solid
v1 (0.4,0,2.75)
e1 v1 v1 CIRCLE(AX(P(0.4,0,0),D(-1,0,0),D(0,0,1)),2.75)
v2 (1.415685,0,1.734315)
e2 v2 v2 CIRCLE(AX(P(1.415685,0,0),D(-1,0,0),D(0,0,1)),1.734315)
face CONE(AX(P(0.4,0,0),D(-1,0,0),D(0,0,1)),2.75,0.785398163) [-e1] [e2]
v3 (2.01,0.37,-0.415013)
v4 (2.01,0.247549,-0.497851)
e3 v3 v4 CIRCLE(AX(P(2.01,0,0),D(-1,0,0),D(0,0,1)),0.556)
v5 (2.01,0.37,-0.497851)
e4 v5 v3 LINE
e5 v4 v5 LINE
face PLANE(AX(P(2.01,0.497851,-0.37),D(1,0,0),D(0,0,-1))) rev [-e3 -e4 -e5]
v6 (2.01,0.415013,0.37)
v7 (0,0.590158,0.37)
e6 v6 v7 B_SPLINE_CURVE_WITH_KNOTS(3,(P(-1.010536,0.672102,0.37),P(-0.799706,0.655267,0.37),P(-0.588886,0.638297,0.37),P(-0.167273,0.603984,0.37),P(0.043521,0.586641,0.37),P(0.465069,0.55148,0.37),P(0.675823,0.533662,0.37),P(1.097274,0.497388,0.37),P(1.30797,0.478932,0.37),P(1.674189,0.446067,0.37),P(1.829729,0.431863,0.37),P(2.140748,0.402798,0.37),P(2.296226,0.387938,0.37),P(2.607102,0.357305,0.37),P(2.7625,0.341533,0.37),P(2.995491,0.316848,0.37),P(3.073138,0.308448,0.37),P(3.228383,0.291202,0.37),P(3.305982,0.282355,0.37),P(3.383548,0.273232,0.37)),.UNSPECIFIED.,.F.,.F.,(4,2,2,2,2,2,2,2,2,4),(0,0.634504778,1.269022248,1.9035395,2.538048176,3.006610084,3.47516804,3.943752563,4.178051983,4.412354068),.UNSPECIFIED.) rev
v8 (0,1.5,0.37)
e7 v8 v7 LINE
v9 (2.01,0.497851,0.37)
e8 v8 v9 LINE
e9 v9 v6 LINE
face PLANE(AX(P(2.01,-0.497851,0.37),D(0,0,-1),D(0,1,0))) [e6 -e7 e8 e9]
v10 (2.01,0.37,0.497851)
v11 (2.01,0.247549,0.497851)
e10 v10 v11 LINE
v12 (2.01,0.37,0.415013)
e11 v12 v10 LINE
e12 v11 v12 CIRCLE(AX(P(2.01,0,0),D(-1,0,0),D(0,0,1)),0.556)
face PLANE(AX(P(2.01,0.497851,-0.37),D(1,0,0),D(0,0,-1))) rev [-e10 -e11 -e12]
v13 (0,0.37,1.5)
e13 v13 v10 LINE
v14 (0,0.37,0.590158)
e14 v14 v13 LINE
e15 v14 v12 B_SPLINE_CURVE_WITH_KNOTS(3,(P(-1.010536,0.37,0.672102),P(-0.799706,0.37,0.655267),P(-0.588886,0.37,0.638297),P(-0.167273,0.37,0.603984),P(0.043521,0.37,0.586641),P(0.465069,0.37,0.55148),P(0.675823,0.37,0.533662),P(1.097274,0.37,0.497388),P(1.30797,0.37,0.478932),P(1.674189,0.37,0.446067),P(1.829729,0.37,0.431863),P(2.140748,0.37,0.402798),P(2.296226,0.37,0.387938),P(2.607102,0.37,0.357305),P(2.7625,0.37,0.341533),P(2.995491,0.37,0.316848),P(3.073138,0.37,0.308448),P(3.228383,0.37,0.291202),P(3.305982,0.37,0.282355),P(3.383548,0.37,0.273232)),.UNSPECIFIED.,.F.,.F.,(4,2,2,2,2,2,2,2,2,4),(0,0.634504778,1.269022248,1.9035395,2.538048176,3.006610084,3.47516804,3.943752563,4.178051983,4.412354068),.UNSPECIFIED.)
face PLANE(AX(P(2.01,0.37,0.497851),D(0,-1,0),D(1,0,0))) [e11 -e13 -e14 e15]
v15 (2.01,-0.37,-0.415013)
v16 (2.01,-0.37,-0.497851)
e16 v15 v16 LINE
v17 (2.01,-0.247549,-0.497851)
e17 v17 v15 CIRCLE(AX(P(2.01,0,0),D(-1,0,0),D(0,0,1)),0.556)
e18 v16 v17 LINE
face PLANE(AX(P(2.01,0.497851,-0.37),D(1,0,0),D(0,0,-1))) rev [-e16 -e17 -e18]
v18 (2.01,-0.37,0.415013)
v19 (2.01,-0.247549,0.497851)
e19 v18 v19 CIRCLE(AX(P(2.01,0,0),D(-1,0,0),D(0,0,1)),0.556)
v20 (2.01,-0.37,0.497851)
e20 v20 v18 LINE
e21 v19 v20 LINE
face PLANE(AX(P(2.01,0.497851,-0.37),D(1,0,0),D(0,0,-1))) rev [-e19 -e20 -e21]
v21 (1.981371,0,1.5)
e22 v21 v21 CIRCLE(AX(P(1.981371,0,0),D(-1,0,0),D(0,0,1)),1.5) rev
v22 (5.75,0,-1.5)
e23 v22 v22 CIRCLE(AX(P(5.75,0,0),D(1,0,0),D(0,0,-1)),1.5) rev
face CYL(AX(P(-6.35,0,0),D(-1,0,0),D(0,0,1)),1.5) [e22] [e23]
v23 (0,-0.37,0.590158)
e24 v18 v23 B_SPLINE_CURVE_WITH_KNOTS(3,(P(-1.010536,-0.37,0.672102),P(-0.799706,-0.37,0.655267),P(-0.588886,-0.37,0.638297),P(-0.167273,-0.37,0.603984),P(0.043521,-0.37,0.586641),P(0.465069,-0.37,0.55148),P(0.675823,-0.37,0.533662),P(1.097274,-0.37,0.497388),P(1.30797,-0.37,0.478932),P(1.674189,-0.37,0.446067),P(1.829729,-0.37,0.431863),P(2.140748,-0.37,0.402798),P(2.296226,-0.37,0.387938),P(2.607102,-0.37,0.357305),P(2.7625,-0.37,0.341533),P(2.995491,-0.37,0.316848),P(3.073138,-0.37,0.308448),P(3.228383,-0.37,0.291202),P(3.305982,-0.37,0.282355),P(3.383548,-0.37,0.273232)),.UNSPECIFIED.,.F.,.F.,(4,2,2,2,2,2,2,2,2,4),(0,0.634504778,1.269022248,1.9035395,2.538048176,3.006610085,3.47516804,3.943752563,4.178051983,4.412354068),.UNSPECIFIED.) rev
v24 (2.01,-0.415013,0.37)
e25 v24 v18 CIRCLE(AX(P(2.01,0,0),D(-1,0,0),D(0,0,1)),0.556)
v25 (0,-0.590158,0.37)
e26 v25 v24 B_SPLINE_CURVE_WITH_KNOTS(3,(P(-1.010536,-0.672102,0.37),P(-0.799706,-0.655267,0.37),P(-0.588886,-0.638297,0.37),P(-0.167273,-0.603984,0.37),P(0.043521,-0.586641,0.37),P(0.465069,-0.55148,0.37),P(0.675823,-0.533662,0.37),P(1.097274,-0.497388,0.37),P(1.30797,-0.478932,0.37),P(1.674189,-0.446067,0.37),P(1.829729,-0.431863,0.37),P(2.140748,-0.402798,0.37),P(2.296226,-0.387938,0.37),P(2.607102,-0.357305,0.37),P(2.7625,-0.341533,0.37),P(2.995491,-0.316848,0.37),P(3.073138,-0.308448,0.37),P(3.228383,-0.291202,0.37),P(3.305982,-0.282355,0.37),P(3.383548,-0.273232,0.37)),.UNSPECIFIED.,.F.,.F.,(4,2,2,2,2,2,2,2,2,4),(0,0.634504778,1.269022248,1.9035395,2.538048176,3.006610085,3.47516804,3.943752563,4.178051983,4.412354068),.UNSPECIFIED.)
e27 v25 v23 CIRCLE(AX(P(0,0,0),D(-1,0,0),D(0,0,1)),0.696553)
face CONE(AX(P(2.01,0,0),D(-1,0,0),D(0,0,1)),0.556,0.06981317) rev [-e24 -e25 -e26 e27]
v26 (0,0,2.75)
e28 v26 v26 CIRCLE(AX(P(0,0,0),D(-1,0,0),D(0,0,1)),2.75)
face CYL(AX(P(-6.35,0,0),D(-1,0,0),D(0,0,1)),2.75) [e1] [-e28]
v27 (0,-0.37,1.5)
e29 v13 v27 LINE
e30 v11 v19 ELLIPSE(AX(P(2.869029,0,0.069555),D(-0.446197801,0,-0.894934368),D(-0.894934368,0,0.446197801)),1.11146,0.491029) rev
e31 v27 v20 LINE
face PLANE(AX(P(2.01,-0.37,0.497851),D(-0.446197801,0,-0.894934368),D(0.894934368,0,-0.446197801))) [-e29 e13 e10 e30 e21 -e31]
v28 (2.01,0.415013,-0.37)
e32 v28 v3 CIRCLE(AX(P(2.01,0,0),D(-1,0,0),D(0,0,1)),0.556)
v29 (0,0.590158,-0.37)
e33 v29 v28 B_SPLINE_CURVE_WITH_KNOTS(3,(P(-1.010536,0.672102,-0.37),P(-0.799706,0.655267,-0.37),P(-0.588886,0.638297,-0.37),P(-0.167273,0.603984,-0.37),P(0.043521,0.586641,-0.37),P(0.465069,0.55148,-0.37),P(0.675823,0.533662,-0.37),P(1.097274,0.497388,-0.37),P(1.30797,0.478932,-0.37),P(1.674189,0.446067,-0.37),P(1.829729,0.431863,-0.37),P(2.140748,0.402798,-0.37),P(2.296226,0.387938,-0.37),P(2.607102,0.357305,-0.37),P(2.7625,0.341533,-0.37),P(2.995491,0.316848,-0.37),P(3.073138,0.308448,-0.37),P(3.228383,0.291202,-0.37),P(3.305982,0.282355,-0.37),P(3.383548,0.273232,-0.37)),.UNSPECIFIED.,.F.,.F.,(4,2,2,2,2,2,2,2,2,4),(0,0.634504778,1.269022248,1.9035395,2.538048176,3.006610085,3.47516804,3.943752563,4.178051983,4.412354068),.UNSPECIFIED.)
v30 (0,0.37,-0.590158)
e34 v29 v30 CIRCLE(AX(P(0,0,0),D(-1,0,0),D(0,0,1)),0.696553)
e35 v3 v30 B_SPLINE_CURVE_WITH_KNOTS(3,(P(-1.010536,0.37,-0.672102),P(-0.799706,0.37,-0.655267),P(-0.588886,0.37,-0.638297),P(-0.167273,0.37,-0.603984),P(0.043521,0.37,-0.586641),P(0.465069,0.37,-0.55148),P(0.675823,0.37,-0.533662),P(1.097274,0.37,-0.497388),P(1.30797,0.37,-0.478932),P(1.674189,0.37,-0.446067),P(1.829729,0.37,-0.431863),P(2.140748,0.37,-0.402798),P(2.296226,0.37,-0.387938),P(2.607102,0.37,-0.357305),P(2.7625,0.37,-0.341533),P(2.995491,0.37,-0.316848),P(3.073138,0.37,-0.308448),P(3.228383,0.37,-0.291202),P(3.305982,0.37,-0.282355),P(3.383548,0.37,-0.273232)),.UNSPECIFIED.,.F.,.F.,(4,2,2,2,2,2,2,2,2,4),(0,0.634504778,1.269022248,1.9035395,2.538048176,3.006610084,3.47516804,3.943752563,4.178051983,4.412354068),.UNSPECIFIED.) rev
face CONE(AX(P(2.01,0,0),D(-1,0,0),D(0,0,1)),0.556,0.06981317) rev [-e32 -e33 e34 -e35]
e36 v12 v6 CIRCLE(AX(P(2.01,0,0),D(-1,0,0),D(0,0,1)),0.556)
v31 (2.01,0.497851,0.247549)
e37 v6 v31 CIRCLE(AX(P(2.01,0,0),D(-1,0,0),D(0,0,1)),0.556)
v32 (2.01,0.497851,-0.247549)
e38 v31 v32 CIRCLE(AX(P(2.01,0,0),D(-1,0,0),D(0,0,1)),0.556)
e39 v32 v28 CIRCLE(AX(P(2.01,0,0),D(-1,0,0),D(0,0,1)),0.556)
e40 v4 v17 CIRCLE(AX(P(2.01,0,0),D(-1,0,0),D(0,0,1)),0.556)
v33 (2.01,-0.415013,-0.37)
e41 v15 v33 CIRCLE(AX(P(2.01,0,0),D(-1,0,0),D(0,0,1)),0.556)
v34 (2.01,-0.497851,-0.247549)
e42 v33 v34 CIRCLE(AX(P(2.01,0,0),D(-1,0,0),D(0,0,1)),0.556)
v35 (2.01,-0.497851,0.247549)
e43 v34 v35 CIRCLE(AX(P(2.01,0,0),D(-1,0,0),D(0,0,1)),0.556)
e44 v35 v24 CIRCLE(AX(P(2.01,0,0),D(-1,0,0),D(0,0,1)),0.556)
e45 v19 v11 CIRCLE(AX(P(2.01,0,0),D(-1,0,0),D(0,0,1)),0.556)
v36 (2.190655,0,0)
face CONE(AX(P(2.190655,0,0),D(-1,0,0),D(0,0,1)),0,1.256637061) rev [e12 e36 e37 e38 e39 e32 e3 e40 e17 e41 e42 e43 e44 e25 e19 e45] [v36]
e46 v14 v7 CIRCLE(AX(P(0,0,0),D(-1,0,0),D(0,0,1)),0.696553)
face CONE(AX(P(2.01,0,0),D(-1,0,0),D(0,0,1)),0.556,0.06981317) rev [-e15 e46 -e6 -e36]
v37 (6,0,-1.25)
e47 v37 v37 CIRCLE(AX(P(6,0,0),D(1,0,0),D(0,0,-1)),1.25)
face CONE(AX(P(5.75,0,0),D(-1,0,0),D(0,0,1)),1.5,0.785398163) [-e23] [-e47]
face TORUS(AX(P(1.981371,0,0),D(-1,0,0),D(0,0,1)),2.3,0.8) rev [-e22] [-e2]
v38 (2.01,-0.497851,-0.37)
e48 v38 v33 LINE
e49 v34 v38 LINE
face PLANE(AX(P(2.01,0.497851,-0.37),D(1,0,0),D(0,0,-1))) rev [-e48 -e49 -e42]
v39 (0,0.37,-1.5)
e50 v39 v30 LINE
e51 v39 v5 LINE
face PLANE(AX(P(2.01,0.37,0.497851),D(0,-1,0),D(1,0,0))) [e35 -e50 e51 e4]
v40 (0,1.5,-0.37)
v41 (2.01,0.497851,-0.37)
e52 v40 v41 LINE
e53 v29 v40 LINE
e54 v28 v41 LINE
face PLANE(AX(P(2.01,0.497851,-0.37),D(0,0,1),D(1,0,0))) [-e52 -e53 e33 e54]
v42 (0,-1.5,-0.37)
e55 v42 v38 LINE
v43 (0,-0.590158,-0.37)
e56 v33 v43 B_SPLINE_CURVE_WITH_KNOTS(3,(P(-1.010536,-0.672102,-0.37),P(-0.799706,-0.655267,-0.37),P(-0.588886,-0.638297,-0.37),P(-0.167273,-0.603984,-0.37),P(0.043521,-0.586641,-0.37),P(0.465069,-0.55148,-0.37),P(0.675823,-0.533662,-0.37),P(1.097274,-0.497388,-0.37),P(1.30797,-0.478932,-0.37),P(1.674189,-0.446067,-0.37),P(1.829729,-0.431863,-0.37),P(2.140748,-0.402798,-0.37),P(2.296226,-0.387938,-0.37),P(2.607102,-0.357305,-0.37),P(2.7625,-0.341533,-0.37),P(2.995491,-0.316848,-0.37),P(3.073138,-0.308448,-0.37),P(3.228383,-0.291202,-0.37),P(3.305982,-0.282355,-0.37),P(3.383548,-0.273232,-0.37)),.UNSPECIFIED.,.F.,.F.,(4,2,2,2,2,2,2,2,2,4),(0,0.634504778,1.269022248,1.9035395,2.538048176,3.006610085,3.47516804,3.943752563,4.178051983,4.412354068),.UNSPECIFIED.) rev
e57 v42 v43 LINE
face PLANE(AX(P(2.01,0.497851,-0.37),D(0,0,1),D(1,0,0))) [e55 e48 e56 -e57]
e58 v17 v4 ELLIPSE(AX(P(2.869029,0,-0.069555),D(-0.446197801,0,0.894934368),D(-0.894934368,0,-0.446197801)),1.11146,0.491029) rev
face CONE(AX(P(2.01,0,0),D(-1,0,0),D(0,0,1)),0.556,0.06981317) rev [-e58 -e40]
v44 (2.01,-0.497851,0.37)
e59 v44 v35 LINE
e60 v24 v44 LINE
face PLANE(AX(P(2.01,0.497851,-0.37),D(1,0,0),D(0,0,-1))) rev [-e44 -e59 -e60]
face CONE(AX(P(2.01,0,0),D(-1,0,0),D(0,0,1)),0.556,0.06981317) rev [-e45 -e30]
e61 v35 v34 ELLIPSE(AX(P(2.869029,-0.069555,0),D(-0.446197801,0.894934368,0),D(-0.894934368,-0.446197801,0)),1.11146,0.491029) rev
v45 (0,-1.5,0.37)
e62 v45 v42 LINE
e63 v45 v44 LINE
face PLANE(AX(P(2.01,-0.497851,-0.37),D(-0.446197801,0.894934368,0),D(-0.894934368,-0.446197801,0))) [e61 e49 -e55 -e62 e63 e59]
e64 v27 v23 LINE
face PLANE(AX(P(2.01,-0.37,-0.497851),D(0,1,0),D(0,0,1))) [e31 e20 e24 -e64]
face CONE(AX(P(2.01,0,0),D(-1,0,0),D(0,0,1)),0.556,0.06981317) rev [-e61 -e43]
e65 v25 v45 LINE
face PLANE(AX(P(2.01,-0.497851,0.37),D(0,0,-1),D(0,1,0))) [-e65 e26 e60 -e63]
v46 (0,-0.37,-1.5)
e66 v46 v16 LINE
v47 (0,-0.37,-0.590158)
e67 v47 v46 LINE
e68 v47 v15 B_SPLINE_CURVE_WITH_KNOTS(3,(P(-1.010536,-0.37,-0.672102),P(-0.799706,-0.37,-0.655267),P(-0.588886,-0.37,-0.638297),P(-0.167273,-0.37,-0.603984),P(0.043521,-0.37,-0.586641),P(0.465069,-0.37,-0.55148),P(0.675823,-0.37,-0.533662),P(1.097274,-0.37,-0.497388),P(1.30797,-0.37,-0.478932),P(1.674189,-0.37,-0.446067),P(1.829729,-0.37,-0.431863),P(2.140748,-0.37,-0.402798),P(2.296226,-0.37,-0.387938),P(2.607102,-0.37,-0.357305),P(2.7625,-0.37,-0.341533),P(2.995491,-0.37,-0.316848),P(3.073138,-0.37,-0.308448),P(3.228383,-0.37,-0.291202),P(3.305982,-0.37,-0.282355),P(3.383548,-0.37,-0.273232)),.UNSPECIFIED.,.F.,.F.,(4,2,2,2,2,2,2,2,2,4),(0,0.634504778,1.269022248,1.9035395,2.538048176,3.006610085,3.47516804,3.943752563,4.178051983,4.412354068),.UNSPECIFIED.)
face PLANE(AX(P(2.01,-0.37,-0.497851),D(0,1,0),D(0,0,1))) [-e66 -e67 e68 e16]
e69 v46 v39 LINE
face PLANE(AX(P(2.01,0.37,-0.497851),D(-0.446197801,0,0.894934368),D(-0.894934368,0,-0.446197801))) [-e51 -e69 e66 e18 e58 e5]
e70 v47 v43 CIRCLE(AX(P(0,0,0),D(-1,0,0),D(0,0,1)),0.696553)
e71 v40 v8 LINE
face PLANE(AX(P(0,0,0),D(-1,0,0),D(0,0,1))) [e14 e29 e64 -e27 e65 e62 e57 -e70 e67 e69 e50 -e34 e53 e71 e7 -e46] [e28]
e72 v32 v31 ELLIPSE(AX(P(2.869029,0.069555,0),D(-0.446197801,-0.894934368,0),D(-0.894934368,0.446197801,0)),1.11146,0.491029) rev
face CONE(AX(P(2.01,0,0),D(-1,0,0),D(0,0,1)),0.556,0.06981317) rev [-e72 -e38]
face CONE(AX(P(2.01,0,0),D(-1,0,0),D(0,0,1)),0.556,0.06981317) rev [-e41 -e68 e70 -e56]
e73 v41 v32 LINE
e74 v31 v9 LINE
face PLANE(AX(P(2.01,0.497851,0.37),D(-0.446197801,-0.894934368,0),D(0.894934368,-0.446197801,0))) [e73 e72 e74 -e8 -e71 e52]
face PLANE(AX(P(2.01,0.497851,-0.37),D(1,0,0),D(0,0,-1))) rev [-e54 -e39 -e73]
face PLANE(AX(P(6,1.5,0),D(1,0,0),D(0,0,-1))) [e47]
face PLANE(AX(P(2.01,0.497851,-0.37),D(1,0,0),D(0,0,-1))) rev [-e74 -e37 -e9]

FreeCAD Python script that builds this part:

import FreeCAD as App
import Part
import Sketcher

V = App.Vector
Q = App.Units.Quantity


def edges_at(feature, points):
    """Names of the edges that pass closest to the given points."""
    edges = feature.Shape.Edges
    near = lambda p: min(range(len(edges)), key=lambda i: edges[i].distToShape(Part.Vertex(*p))[0])
    return sorted({f"Edge{near(p) + 1}" for p in points})


def add_polygon(sketch, points):
    """Adds a closed chain of lines whose ends are joined by coincident constraints."""
    first, n = sketch.GeometryCount, len(points)
    for a, b in zip(points, points[1:] + points[:1]):
        sketch.addGeometry(Part.LineSegment(App.Vector(*a, 0), App.Vector(*b, 0)), False)
    for i in range(n):
        sketch.addConstraint(Sketcher.Constraint("Coincident", first + i, 2, first + (i + 1) % n, 1))

doc = App.newDocument("Part")
body = doc.addObject("PartDesign::Body", "Body")

sketch1 = body.newObject("Sketcher::SketchObject", "Sketch")
sketch1.AttachmentSupport = (doc.getObject("XY_Plane"), [""])
sketch1.MapMode = "FlatFace"
add_polygon(sketch1, [(0, 2.75), (0, 0), (6, 0), (6, 1.5), (1.65, 1.5), (0.4, 2.75)])
sketch1.addConstraint([
    Sketcher.Constraint("Vertical", 0),
    Sketcher.Constraint("Horizontal", 1),
    Sketcher.Constraint("Vertical", 2),
    Sketcher.Constraint("Horizontal", 3),
    Sketcher.Constraint("Horizontal", 5),
    Sketcher.Constraint("Coincident", 0, 2, -1, 1),
    Sketcher.Constraint("DistanceX", 1, 1, 1, 2, Q("6 mm")),
    Sketcher.Constraint("Angle", 4, Q("135 deg")),
    Sketcher.Constraint("DistanceX", 5, 2, 5, 1, Q("0.4 mm")),
    Sketcher.Constraint("DistanceY", 2, 1, 2, 2, Q("1.5 mm")),
    Sketcher.Constraint("DistanceX", 3, 2, 3, 1, Q("4.35 mm")),
])
revolution = body.newObject("PartDesign::Revolution", "Revolution")
revolution.Profile = sketch1
revolution.ReferenceAxis = (sketch1, ["H_Axis"])
revolution.Angle = 360
doc.recompute()

fillet = body.newObject("PartDesign::Fillet", "Fillet")
fillet.Base = (revolution, edges_at(revolution, [(1.65, -1.5, 0)]))
fillet.Radius = 0.8

sketch2 = body.newObject("Sketcher::SketchObject", "Sketch001")
sketch2.AttachmentSupport = (doc.getObject("YZ_Plane"), [""])
sketch2.MapMode = "FlatFace"
add_polygon(sketch2, [(1.5, -0.4), (-1.5, -0.4), (-1.5, 0.4), (1.5, 0.4)])
sketch2.addConstraint([
    Sketcher.Constraint("Horizontal", 0),
    Sketcher.Constraint("Vertical", 1),
    Sketcher.Constraint("Horizontal", 2),
    Sketcher.Constraint("Vertical", 3),
    Sketcher.Constraint("Symmetric", 0, 2, 2, 2, -1, 1),
    Sketcher.Constraint("DistanceX", 0, 2, 0, 1, Q("3 mm")),
    Sketcher.Constraint("DistanceY", 1, 1, 1, 2, Q("0.74 mm")),
])

sketch3 = body.newObject("Sketcher::SketchObject", "Sketch002")
sketch3.AttachmentSupport = (doc.getObject("YZ_Plane"), [""])
sketch3.MapMode = "FlatFace"
sketch3.AttachmentOffset = App.Placement(V(0, 0, 2.01), App.Rotation())
add_polygon(sketch3, [(0.5, -0.4), (-0.5, -0.4), (-0.5, 0.4), (0.5, 0.4)])
sketch3.addConstraint([
    Sketcher.Constraint("Horizontal", 0),
    Sketcher.Constraint("Vertical", 1),
    Sketcher.Constraint("Horizontal", 2),
    Sketcher.Constraint("Vertical", 3),
    Sketcher.Constraint("Symmetric", 0, 2, 2, 2, -1, 1),
    Sketcher.Constraint("DistanceY", 1, 1, 1, 2, Q("0.74 mm")),
    Sketcher.Constraint("DistanceX", 0, 2, 0, 1, Q("0.995702 mm")),
])

subtractiveloft = body.newObject("PartDesign::SubtractiveLoft", "SubtractiveLoft")
subtractiveloft.Profile = sketch2
subtractiveloft.Sections = [sketch3]
doc.recompute()

polarpattern = body.newObject("PartDesign::PolarPattern", "PolarPattern")
polarpattern.Originals = [subtractiveloft]
polarpattern.Axis = (doc.getObject("X_Axis"), [""])
polarpattern.Angle = 90
polarpattern.Occurrences = 2
body.Tip = polarpattern

sketch4 = body.newObject("Sketcher::SketchObject", "Sketch003")
sketch4.AttachmentSupport = (doc.getObject("XY_Plane"), [""])
sketch4.MapMode = "FlatFace"
add_polygon(sketch4, [(0, 0.7), (0, 0), (2.2, 0), (2, 0.6)])
sketch4.addConstraint([
    Sketcher.Constraint("Vertical", 0),
    Sketcher.Constraint("Horizontal", 1),
    Sketcher.Constraint("Coincident", 0, 2, -1, 1),
    Sketcher.Constraint("Angle", 2, Q("108 deg")),
    Sketcher.Constraint("Angle", 3, Q("176 deg")),
    Sketcher.Constraint("DistanceX", -1, 1, 2, 2, Q("2.01 mm")),
    Sketcher.Constraint("DistanceY", -1, 1, 2, 2, Q("0.556 mm")),
])
groove = body.newObject("PartDesign::Groove", "Groove")
groove.Profile = sketch4
groove.ReferenceAxis = (sketch4, ["H_Axis"])
groove.Angle = 360
doc.recompute()

chamfer = body.newObject("PartDesign::Chamfer", "Chamfer")
chamfer.Base = (groove, edges_at(groove, [(6, -1.5, 0)]))
chamfer.Size = 0.25

doc.recompute()
